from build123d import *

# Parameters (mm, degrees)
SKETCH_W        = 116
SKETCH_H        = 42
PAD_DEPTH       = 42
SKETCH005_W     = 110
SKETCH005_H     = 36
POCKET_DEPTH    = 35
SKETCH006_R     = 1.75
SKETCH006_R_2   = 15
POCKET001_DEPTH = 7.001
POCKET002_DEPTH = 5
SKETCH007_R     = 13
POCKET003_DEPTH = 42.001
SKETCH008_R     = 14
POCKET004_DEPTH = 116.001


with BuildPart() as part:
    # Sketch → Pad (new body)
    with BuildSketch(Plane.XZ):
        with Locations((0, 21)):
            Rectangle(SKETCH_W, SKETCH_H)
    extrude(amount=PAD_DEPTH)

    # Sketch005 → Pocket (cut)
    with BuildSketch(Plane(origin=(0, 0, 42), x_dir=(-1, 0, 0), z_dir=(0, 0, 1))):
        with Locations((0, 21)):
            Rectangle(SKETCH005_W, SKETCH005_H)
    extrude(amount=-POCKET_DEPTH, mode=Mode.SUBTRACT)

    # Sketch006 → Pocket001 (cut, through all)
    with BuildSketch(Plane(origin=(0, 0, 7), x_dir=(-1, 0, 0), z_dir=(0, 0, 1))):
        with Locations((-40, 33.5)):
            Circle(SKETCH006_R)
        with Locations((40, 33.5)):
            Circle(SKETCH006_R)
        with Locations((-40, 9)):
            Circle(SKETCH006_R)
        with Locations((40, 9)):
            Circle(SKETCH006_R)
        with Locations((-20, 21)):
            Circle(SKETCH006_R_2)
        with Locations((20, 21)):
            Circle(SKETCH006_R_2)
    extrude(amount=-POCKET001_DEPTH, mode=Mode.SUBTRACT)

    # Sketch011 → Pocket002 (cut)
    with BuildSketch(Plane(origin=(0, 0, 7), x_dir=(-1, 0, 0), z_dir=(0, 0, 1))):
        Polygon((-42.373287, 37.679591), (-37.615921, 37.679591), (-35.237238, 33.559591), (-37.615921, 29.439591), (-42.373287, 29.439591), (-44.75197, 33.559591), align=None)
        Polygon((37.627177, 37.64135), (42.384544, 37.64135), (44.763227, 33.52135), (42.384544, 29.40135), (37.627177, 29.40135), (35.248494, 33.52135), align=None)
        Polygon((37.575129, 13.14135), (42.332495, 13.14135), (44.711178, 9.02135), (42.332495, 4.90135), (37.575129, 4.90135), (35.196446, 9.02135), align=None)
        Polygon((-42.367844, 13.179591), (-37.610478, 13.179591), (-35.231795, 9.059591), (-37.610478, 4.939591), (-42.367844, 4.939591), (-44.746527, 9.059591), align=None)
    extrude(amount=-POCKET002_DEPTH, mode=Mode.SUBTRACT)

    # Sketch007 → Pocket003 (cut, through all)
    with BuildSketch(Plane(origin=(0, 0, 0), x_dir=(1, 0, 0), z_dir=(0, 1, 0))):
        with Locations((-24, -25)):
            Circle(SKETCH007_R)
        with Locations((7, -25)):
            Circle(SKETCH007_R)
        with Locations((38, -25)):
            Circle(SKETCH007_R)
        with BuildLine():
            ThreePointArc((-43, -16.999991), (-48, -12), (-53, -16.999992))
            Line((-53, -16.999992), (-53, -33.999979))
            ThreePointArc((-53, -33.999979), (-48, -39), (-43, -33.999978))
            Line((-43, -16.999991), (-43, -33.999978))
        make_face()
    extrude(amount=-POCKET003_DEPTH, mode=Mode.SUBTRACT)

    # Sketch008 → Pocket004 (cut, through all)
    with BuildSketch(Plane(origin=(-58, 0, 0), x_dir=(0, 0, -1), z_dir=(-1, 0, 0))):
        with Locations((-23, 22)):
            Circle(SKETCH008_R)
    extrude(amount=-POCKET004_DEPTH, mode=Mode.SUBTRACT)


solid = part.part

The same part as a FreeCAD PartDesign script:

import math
import FreeCAD as App
import Part
import Sketcher

V = App.Vector
Q = App.Units.Quantity

doc = App.newDocument("Part")
body = doc.addObject("PartDesign::Body", "Body")

sketch1 = body.newObject("Sketcher::SketchObject", "Sketch")
sketch1.AttachmentSupport = (doc.getObject("XZ_Plane"), [""])
sketch1.MapMode = "FlatFace"
sketch1.addGeometry([
    Part.LineSegment(V(-58, 42, 0), V(-58, 0, 0)),
    Part.LineSegment(V(-58, 0, 0), V(58, 0, 0)),
    Part.LineSegment(V(58, 0, 0), V(58, 42, 0)),
    Part.LineSegment(V(58, 42, 0), V(-58, 42, 0)),
], False)
sketch1.addConstraint([
    Sketcher.Constraint("Coincident", 0, 2, 1, 1),
    Sketcher.Constraint("Coincident", 1, 2, 2, 1),
    Sketcher.Constraint("Coincident", 2, 2, 3, 1),
    Sketcher.Constraint("Coincident", 3, 2, 0, 1),
    Sketcher.Constraint("Vertical", 0),
    Sketcher.Constraint("Horizontal", 1),
    Sketcher.Constraint("Vertical", 2),
    Sketcher.Constraint("Horizontal", 3),
    Sketcher.Constraint("Symmetric", 0, 2, 1, 2, -1, 1),
    Sketcher.Constraint("DistanceX", 1, 1, 1, 2, Q("116 mm")),
    Sketcher.Constraint("DistanceY", 0, 2, 0, 1, Q("42 mm")),
])
pad1 = body.newObject("PartDesign::Pad", "Pad")
pad1.Profile = sketch1
pad1.Length = 42

sketch2 = body.newObject("Sketcher::SketchObject", "Sketch001")
sketch2.AttachmentSupport = (doc.getObject("XY_Plane"), [""])
sketch2.MapMode = "FlatFace"
sketch2.AttachmentOffset = App.Placement(V(0, 0, 42), App.Rotation())
sketch2.addGeometry([
    Part.LineSegment(V(55, -39, 0), V(55, -3, 0)),
    Part.LineSegment(V(55, -3, 0), V(-55, -3, 0)),
    Part.LineSegment(V(-55, -3, 0), V(-55, -39, 0)),
    Part.LineSegment(V(-55, -39, 0), V(55, -39, 0)),
], False)
sketch2.addConstraint([
    Sketcher.Constraint("Coincident", 0, 2, 1, 1),
    Sketcher.Constraint("Coincident", 1, 2, 2, 1),
    Sketcher.Constraint("Coincident", 2, 2, 3, 1),
    Sketcher.Constraint("Coincident", 3, 2, 0, 1),
    Sketcher.Constraint("Vertical", 0),
    Sketcher.Constraint("Horizontal", 1),
    Sketcher.Constraint("Vertical", 2),
    Sketcher.Constraint("Horizontal", 3),
    Sketcher.Constraint("DistanceX", 1, 2, 1, 1, Q("110 mm")),
    Sketcher.Constraint("DistanceY", 0, 1, 0, 2, Q("36 mm")),
    Sketcher.Constraint("DistanceX", -1, 1, 0, 2, Q("55 mm")),
    Sketcher.Constraint("DistanceY", 0, 2, -1, 1, Q("3 mm")),
])
pocket1 = body.newObject("PartDesign::Pocket", "Pocket")
pocket1.Profile = sketch2
pocket1.Length = 35

sketch3 = body.newObject("Sketcher::SketchObject", "Sketch002")
sketch3.AttachmentSupport = (doc.getObject("XY_Plane"), [""])
sketch3.MapMode = "FlatFace"
sketch3.AttachmentOffset = App.Placement(V(0, 0, 7), App.Rotation())
sketch3.addGeometry([
    Part.Circle(V(40, -33.5, 0), V(0, 0, 1), 1.75),
    Part.Circle(V(-40, -33.5, 0), V(0, 0, 1), 1.75),
    Part.Circle(V(40, -9, 0), V(0, 0, 1), 1.75),
    Part.Circle(V(-40, -9, 0), V(0, 0, 1), 1.75),
    Part.Circle(V(20, -21, 0), V(0, 0, 1), 15),
    Part.Circle(V(-20, -21, 0), V(0, 0, 1), 15),
], False)
sketch3.addConstraint([
    Sketcher.Constraint("Equal", 0, 1),
    Sketcher.Constraint("Equal", 1, 2),
    Sketcher.Constraint("Equal", 2, 3),
    Sketcher.Constraint("Equal", 4, 5),
    Sketcher.Constraint("Symmetric", 0, 3, 1, 3, -2),
    Sketcher.Constraint("Symmetric", 2, 3, 3, 3, -2),
    Sketcher.Constraint("Symmetric", 4, 3, 5, 3, -2),
    Sketcher.Constraint("Vertical", 0, 3, 2, 3),
    Sketcher.Constraint("Diameter", 4, Q("30 mm")),
    Sketcher.Constraint("Diameter", 0, Q("3.5 mm")),
    Sketcher.Constraint("DistanceX", -1, 1, 0, 3, Q("40 mm")),
    Sketcher.Constraint("DistanceY", 2, 3, -1, 1, Q("9 mm")),
    Sketcher.Constraint("DistanceX", -1, 1, 4, 3, Q("20 mm")),
    Sketcher.Constraint("DistanceY", 4, 3, -1, 1, Q("21 mm")),
    Sketcher.Constraint("DistanceY", 0, 3, -1, 1, Q("33.5 mm")),
])
pocket2 = body.newObject("PartDesign::Pocket", "Pocket001")
pocket2.Profile = sketch3
pocket2.Type = "ThroughAll"

sketch4 = body.newObject("Sketcher::SketchObject", "Sketch003")
sketch4.AttachmentSupport = (doc.getObject("XY_Plane"), [""])
sketch4.MapMode = "FlatFace"
sketch4.AttachmentOffset = App.Placement(V(0, 0, 7), App.Rotation())
sketch4.addGeometry([
    Part.LineSegment(V(37.615921, -37.679591, 0), V(42.373287, -37.679591, 0)),
    Part.LineSegment(V(42.373287, -37.679591, 0), V(44.75197, -33.559591, 0)),
    Part.LineSegment(V(44.75197, -33.559591, 0), V(42.373287, -29.439591, 0)),
    Part.LineSegment(V(42.373287, -29.439591, 0), V(37.615921, -29.439591, 0)),
    Part.LineSegment(V(37.615921, -29.439591, 0), V(35.237238, -33.559591, 0)),
    Part.LineSegment(V(35.237238, -33.559591, 0), V(37.615921, -37.679591, 0)),
    Part.LineSegment(V(-42.384544, -37.64135, 0), V(-37.627177, -37.64135, 0)),
    Part.LineSegment(V(-37.627177, -37.64135, 0), V(-35.248494, -33.52135, 0)),
    Part.LineSegment(V(-35.248494, -33.52135, 0), V(-37.627177, -29.40135, 0)),
    Part.LineSegment(V(-37.627177, -29.40135, 0), V(-42.384544, -29.40135, 0)),
    Part.LineSegment(V(-42.384544, -29.40135, 0), V(-44.763227, -33.52135, 0)),
    Part.LineSegment(V(-44.763227, -33.52135, 0), V(-42.384544, -37.64135, 0)),
    Part.LineSegment(V(-42.332495, -13.14135, 0), V(-37.575129, -13.14135, 0)),
    Part.LineSegment(V(-37.575129, -13.14135, 0), V(-35.196446, -9.02135, 0)),
    Part.LineSegment(V(-35.196446, -9.02135, 0), V(-37.575129, -4.90135, 0)),
    Part.LineSegment(V(-37.575129, -4.90135, 0), V(-42.332495, -4.90135, 0)),
    Part.LineSegment(V(-42.332495, -4.90135, 0), V(-44.711178, -9.02135, 0)),
    Part.LineSegment(V(-44.711178, -9.02135, 0), V(-42.332495, -13.14135, 0)),
    Part.LineSegment(V(37.610478, -13.179591, 0), V(42.367844, -13.179591, 0)),
    Part.LineSegment(V(42.367844, -13.179591, 0), V(44.746527, -9.059591, 0)),
    Part.LineSegment(V(44.746527, -9.059591, 0), V(42.367844, -4.939591, 0)),
    Part.LineSegment(V(42.367844, -4.939591, 0), V(37.610478, -4.939591, 0)),
    Part.LineSegment(V(37.610478, -4.939591, 0), V(35.231795, -9.059591, 0)),
    Part.LineSegment(V(35.231795, -9.059591, 0), V(37.610478, -13.179591, 0)),
], False)
sketch4.addConstraint([
    Sketcher.Constraint("Coincident", 0, 2, 1, 1),
    Sketcher.Constraint("Coincident", 1, 2, 2, 1),
    Sketcher.Constraint("Coincident", 2, 2, 3, 1),
    Sketcher.Constraint("Coincident", 3, 2, 4, 1),
    Sketcher.Constraint("Coincident", 4, 2, 5, 1),
    Sketcher.Constraint("Coincident", 5, 2, 0, 1),
    Sketcher.Constraint("Coincident", 6, 2, 7, 1),
    Sketcher.Constraint("Coincident", 7, 2, 8, 1),
    Sketcher.Constraint("Coincident", 8, 2, 9, 1),
    Sketcher.Constraint("Coincident", 9, 2, 10, 1),
    Sketcher.Constraint("Coincident", 10, 2, 11, 1),
    Sketcher.Constraint("Coincident", 11, 2, 6, 1),
    Sketcher.Constraint("Coincident", 12, 2, 13, 1),
    Sketcher.Constraint("Coincident", 13, 2, 14, 1),
    Sketcher.Constraint("Coincident", 14, 2, 15, 1),
    Sketcher.Constraint("Coincident", 15, 2, 16, 1),
    Sketcher.Constraint("Coincident", 16, 2, 17, 1),
    Sketcher.Constraint("Coincident", 17, 2, 12, 1),
    Sketcher.Constraint("Coincident", 18, 2, 19, 1),
    Sketcher.Constraint("Coincident", 19, 2, 20, 1),
    Sketcher.Constraint("Coincident", 20, 2, 21, 1),
    Sketcher.Constraint("Coincident", 21, 2, 22, 1),
    Sketcher.Constraint("Coincident", 22, 2, 23, 1),
    Sketcher.Constraint("Coincident", 23, 2, 18, 1),
    Sketcher.Constraint("Horizontal", 0),
    Sketcher.Constraint("Horizontal", 3),
    Sketcher.Constraint("Horizontal", 6),
    Sketcher.Constraint("Horizontal", 9),
    Sketcher.Constraint("Horizontal", 12),
    Sketcher.Constraint("Horizontal", 15),
    Sketcher.Constraint("Horizontal", 18),
    Sketcher.Constraint("Horizontal", 21),
    Sketcher.Constraint("Parallel", 1, 4),
    Sketcher.Constraint("Parallel", 2, 5),
    Sketcher.Constraint("Parallel", 4, 7),
    Sketcher.Constraint("Parallel", 5, 8),
    Sketcher.Constraint("Parallel", 7, 10),
    Sketcher.Constraint("Parallel", 8, 11),
    Sketcher.Constraint("Parallel", 10, 13),
    Sketcher.Constraint("Parallel", 11, 14),
    Sketcher.Constraint("Parallel", 13, 16),
    Sketcher.Constraint("Parallel", 14, 17),
    Sketcher.Constraint("Parallel", 16, 19),
    Sketcher.Constraint("Parallel", 17, 20),
    Sketcher.Constraint("Parallel", 19, 22),
    Sketcher.Constraint("Parallel", 20, 23),
    Sketcher.Constraint("Horizontal", 1, 2, 4, 2),
    Sketcher.Constraint("Horizontal", 7, 2, 10, 2),
    Sketcher.Constraint("Horizontal", 13, 2, 16, 2),
    Sketcher.Constraint("Horizontal", 19, 2, 22, 2),
    Sketcher.Constraint("Vertical", 0, 2, 2, 2),
    Sketcher.Constraint("Vertical", 3, 2, 5, 2),
    Sketcher.Constraint("Vertical", 6, 2, 8, 2),
    Sketcher.Constraint("Vertical", 12, 2, 14, 2),
    Sketcher.Constraint("Vertical", 18, 2, 20, 2),
    Sketcher.Constraint("Equal", 3, 6),
    Sketcher.Constraint("Equal", 9, 12),
    Sketcher.Constraint("Equal", 15, 18),
    Sketcher.Constraint("Equal", 5, 7),
    Sketcher.Constraint("Equal", 11, 13),
    Sketcher.Constraint("Equal", 17, 19),
    Sketcher.Constraint("Angle", 1, Q("60.000001 deg")),
    Sketcher.Constraint("DistanceY", 6, 2, 12, 2, Q("24.5 mm")),
    Sketcher.Constraint("DistanceY", 0, 2, 18, 2, Q("24.5 mm")),
    Sketcher.Constraint("DistanceY", 0, 2, 1, 2, Q("4.12 mm")),
    Sketcher.Constraint("DistanceX", 6, 2, 5, 2, Q("75.243098 mm")),
    Sketcher.Constraint("DistanceX", 10, 2, 12, 2, Q("7.188098 mm")),
    Sketcher.Constraint("DistanceX", 0, 1, 0, 2, Q("4.757366 mm")),
    Sketcher.Constraint("DistanceY", 0, 2, -1, 1, Q("37.679591 mm")),
    Sketcher.Constraint("DistanceX", -1, 1, 1, 2, Q("44.75197 mm")),
    Sketcher.Constraint("DistanceY", 6, 2, -1, 1, Q("37.64135 mm")),
    Sketcher.Constraint("DistanceX", 2, 2, 19, 2, Q("2.37324 mm")),
])
pocket3 = body.newObject("PartDesign::Pocket", "Pocket002")
pocket3.Profile = sketch4
pocket3.Length = 5

sketch5 = body.newObject("Sketcher::SketchObject", "Sketch004")
sketch5.AttachmentSupport = (doc.getObject("XZ_Plane"), [""])
sketch5.MapMode = "FlatFace"
sketch5.addGeometry([
    Part.Circle(V(-24, 25, 0), V(0, 0, 1), 13),
    Part.Circle(V(7, 25, 0), V(0, 0, 1), 13),
    Part.Circle(V(38, 25, 0), V(0, 0, 1), 13),
    Part.ArcOfCircle(Part.Circle(V(-48, 17, 0), V(0, 0, 1), 5), math.radians(-179.999908), math.radians(-0.000103)),
    Part.LineSegment(V(-53, 16.999992, 0), V(-53, 33.999979, 0)),
    Part.ArcOfCircle(Part.Circle(V(-48, 34, 0), V(0, 0, 1), 5), math.radians(-0.000252), math.radians(180.000241)),
    Part.LineSegment(V(-43, 33.999978, 0), V(-43, 16.999991, 0)),
], False)
sketch5.addConstraint([
    Sketcher.Constraint("Tangent", 3, 1, 4, 1),
    Sketcher.Constraint("Coincident", 4, 2, 5, 2),
    Sketcher.Constraint("Coincident", 5, 1, 6, 1),
    Sketcher.Constraint("Tangent", 6, 2, 3, 2),
    Sketcher.Constraint("Vertical", 4),
    Sketcher.Constraint("Vertical", 6),
    Sketcher.Constraint("Equal", 0, 1),
    Sketcher.Constraint("Equal", 1, 2),
    Sketcher.Constraint("Horizontal", 0, 3, 1, 3),
    Sketcher.Constraint("Horizontal", 1, 3, 2, 3),
    Sketcher.Constraint("Horizontal", 4, 2, 5, 1),
    Sketcher.Constraint("Diameter", 0, Q("26 mm")),
    Sketcher.Constraint("Radius", 3, Q("5 mm")),
    Sketcher.Constraint("DistanceX", 0, 3, -1, 1, Q("24 mm")),
    Sketcher.Constraint("DistanceY", -1, 1, 0, 3, Q("25 mm")),
    Sketcher.Constraint("DistanceX", -1, 1, 1, 3, Q("7 mm")),
    Sketcher.Constraint("DistanceX", -1, 1, 2, 3, Q("38 mm")),
    Sketcher.Constraint("DistanceX", 3, 3, -1, 1, Q("48 mm")),
    Sketcher.Constraint("DistanceY", -1, 1, 3, 3, Q("17 mm")),
    Sketcher.Constraint("DistanceY", -1, 1, 5, 3, Q("34 mm")),
    Sketcher.Constraint("DistanceY", 4, 1, 4, 2, Q("16.999987 mm")),
])
pocket4 = body.newObject("PartDesign::Pocket", "Pocket003")
pocket4.Profile = sketch5
pocket4.Type = "ThroughAll"
pocket4.Reversed = True

sketch6 = body.newObject("Sketcher::SketchObject", "Sketch005")
sketch6.AttachmentSupport = (doc.getObject("YZ_Plane"), [""])
sketch6.MapMode = "FlatFace"
sketch6.AttachmentOffset = App.Placement(V(0, 0, -58), App.Rotation())
sketch6.addGeometry(Part.Circle(V(-22, 23, 0), V(0, 0, 1), 14), False)
sketch6.addConstraint([
    Sketcher.Constraint("Diameter", 0, Q("28 mm")),
    Sketcher.Constraint("DistanceX", 0, 3, -1, 1, Q("22 mm")),
    Sketcher.Constraint("DistanceY", -1, 1, 0, 3, Q("23 mm")),
])
pocket5 = body.newObject("PartDesign::Pocket", "Pocket004")
pocket5.Profile = sketch6
pocket5.Type = "ThroughAll"
pocket5.Reversed = True

doc.recompute()
